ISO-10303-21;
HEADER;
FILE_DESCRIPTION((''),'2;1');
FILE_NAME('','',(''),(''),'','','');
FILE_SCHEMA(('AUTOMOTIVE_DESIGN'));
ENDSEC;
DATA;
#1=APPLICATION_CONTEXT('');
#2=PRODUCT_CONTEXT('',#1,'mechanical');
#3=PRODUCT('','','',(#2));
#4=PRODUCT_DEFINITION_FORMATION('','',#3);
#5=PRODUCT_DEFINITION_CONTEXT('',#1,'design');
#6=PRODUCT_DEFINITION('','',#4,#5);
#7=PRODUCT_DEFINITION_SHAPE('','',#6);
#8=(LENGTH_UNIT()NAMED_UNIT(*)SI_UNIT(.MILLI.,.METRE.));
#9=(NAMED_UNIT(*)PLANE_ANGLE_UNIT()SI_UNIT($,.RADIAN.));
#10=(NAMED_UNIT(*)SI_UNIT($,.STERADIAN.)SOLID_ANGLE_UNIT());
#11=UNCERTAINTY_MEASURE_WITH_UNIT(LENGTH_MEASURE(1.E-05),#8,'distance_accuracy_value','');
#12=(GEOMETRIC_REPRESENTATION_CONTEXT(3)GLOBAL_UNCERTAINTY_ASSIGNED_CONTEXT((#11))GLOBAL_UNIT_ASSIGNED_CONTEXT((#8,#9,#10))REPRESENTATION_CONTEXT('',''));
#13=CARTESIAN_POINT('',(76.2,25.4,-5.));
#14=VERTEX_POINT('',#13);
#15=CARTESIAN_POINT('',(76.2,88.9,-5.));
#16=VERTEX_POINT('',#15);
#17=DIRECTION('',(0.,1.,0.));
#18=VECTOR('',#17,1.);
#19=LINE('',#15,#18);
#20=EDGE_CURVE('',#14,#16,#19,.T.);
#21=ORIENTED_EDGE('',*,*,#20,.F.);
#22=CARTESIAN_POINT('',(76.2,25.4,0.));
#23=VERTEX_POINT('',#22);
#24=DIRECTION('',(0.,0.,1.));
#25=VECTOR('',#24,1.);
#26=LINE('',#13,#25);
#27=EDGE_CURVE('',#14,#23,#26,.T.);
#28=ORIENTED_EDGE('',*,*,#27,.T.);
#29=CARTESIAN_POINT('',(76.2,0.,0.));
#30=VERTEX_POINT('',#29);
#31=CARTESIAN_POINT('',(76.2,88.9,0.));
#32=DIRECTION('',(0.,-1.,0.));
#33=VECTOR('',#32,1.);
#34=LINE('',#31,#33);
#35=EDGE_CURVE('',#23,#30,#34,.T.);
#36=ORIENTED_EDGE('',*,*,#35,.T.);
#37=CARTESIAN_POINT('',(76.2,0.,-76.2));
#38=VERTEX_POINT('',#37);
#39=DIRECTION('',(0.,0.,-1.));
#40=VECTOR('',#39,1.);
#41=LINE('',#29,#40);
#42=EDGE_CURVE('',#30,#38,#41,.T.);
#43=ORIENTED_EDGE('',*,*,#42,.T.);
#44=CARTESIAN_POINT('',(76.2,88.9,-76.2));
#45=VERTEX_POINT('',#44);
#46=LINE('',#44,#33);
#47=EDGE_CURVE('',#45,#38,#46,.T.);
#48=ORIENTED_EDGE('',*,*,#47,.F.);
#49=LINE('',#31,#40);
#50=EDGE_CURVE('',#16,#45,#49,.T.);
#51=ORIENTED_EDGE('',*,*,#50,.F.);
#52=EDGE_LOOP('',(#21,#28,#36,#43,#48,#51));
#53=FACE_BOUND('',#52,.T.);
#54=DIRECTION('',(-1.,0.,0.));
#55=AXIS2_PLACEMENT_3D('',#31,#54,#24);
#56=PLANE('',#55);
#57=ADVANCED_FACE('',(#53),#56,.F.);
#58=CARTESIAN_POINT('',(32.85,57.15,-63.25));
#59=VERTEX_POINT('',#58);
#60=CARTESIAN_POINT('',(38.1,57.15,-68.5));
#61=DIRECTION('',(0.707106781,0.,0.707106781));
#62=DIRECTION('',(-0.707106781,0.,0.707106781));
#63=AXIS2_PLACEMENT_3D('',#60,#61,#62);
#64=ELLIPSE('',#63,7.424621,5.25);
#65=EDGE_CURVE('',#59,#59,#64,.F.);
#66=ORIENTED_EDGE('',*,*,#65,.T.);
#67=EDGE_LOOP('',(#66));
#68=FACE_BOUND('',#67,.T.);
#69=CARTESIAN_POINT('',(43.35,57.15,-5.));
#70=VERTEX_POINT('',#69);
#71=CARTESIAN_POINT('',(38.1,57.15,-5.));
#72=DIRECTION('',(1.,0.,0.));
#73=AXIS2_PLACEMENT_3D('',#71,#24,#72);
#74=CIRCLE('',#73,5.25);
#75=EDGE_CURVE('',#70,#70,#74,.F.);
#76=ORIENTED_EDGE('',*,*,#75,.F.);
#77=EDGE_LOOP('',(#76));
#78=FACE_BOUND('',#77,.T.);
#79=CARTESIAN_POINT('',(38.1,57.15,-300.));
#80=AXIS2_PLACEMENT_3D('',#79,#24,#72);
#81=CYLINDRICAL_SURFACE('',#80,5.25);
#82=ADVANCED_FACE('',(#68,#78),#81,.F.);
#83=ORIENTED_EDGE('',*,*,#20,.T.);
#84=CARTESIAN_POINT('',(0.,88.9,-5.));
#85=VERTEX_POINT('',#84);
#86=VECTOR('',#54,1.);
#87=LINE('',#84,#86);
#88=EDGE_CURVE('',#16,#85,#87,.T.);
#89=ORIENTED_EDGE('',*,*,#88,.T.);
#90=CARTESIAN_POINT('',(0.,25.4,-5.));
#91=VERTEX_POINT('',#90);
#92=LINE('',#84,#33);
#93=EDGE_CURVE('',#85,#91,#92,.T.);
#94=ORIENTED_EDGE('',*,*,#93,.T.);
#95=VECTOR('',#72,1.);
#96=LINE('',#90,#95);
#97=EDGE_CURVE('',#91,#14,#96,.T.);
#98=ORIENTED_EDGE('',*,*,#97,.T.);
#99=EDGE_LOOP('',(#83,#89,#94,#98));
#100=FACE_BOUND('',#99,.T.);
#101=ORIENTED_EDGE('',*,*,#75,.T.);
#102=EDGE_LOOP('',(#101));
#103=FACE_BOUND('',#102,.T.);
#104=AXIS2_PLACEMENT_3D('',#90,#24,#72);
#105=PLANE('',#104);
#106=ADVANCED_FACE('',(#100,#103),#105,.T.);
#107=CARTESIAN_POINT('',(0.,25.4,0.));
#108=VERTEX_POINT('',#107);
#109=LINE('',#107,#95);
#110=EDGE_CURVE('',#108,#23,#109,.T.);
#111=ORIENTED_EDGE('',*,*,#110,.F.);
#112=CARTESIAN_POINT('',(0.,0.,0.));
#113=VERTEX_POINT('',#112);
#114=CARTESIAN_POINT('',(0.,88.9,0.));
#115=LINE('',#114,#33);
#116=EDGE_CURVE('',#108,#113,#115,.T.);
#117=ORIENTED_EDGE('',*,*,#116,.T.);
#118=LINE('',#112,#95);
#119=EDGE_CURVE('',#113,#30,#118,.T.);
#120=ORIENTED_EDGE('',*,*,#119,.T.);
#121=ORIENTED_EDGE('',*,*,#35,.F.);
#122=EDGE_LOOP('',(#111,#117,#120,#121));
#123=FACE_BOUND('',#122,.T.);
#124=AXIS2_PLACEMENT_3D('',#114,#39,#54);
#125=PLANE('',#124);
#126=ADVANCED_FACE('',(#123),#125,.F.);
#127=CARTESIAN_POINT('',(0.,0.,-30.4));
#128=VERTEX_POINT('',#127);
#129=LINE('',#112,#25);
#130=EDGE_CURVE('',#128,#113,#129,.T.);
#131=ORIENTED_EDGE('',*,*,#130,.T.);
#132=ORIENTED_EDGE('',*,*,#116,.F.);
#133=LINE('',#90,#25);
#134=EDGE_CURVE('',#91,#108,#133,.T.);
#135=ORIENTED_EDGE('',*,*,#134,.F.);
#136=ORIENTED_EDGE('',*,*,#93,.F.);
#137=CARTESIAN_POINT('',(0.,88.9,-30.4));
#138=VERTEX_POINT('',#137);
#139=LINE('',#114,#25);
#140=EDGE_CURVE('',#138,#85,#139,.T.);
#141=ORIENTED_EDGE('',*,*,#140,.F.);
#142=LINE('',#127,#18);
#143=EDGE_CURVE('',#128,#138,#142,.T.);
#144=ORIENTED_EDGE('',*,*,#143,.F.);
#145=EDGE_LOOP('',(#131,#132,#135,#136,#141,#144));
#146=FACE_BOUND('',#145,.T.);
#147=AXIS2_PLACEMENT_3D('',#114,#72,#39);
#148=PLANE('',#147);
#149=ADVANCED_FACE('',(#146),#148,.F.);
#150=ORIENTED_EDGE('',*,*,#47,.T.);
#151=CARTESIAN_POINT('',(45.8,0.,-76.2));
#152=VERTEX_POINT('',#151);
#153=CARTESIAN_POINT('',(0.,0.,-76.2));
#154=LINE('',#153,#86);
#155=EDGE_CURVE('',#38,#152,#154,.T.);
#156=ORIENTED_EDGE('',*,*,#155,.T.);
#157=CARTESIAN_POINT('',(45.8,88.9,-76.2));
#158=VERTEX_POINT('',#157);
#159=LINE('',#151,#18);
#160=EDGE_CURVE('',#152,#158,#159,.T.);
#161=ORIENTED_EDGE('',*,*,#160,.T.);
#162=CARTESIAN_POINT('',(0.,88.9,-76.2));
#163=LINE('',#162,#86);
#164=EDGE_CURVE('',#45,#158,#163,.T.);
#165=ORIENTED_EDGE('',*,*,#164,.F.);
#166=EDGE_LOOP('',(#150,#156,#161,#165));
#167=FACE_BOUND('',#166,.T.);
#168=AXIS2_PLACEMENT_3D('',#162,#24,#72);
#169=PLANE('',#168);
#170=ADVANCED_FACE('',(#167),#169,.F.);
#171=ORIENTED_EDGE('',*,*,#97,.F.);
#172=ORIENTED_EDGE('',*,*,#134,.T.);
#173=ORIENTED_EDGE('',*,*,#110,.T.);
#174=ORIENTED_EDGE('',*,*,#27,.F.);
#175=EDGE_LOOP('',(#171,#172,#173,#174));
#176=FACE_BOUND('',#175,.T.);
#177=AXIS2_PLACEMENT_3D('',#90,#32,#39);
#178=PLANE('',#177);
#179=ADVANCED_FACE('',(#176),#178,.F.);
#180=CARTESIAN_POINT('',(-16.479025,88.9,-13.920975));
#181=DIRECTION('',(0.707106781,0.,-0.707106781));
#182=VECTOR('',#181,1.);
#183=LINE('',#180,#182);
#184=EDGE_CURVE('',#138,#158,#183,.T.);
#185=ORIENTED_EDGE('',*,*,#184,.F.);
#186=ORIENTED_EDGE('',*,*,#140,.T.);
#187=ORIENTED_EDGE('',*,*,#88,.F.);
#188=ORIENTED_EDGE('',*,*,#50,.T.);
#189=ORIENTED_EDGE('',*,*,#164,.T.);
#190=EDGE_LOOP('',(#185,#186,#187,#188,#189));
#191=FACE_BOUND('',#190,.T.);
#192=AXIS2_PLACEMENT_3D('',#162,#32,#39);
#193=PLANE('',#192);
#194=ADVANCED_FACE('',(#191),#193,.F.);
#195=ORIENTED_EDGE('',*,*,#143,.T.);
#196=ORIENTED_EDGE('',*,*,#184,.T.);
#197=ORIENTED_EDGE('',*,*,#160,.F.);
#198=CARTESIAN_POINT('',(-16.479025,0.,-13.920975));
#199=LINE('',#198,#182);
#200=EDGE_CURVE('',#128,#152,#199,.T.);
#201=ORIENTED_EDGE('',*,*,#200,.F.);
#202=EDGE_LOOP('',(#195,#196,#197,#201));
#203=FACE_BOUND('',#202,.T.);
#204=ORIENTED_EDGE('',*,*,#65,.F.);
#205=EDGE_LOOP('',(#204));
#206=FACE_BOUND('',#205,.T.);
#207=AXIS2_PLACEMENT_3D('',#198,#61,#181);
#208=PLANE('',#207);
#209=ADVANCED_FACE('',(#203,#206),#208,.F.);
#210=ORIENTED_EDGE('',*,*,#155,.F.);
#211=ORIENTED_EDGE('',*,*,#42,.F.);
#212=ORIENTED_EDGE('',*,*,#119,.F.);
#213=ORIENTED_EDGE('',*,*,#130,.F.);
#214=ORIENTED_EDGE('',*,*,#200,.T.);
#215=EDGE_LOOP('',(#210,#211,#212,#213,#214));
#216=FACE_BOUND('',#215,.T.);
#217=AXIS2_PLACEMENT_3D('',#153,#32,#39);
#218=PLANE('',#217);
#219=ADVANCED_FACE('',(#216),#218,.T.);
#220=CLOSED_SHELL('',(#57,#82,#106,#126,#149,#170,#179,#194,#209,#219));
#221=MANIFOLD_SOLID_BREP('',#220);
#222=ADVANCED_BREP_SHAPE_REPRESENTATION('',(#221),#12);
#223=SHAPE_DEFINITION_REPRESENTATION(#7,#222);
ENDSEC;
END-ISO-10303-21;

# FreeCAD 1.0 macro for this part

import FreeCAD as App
import Part
import Sketcher
from FreeCAD import Vector

doc = App.newDocument("Part")
body = doc.addObject("PartDesign::Body", "Body")

sketch1 = body.newObject("Sketcher::SketchObject", "Sketch")
sketch1.AttachmentSupport = (doc.getObject("XZ_Plane"), [""])
sketch1.MapMode = "FlatFace"
sketch1.addGeometry([
    Part.LineSegment(Vector(0, -76, 0), Vector(0, 0, 0)),
    Part.LineSegment(Vector(0, 0, 0), Vector(76, 0, 0)),
    Part.LineSegment(Vector(76, 0, 0), Vector(76, -76, 0)),
    Part.LineSegment(Vector(76, -76, 0), Vector(0, -76, 0)),
], False)
sketch1.addConstraint([
    Sketcher.Constraint("Coincident", 0, 2, 1, 1),
    Sketcher.Constraint("Coincident", 1, 2, 2, 1),
    Sketcher.Constraint("Coincident", 2, 2, 3, 1),
    Sketcher.Constraint("Coincident", 3, 2, 0, 1),
    Sketcher.Constraint("Vertical", 0),
    Sketcher.Constraint("Horizontal", 1),
    Sketcher.Constraint("Vertical", 2),
    Sketcher.Constraint("Horizontal", 3),
    Sketcher.Constraint("Coincident", 0, 2, -1, 1),
    Sketcher.Constraint("Equal", 3, 0),
    Sketcher.Constraint("DistanceX", 1, 1, 1, 2, 76.2),
])
pad1 = body.newObject("PartDesign::Pad", "Pad")
pad1.Profile = sketch1
pad1.Length = 88.9
pad1.Reversed = True

sketch2 = body.newObject("Sketcher::SketchObject", "Sketch001")
sketch2.AttachmentSupport = (doc.getObject("XY_Plane"), [""])
sketch2.MapMode = "FlatFace"
sketch2.addGeometry(Part.Circle(Vector(38, 57, 0), Vector(0, 0, 1), 5), False)
sketch2.addConstraint([
    Sketcher.Constraint("Diameter", 0, 10.5),
    Sketcher.Constraint("DistanceX", -1, 1, 0, 3, 38.1),
    Sketcher.Constraint("DistanceY", -1, 1, 0, 3, 57.15),
])
pocket1 = body.newObject("PartDesign::Pocket", "Pocket")
pocket1.Profile = sketch2
pocket1.Length = 300

sketch3 = body.newObject("Sketcher::SketchObject", "Sketch002")
sketch3.AttachmentSupport = (doc.getObject("XY_Plane"), [""])
sketch3.MapMode = "FlatFace"
sketch3.addGeometry([
    Part.LineSegment(Vector(0, 89, 0), Vector(0, 25, 0)),
    Part.LineSegment(Vector(0, 25, 0), Vector(76, 25, 0)),
    Part.LineSegment(Vector(76, 25, 0), Vector(76, 89, 0)),
    Part.LineSegment(Vector(76, 89, 0), Vector(0, 89, 0)),
], False)
sketch3.addConstraint([
    Sketcher.Constraint("Coincident", 0, 2, 1, 1),
    Sketcher.Constraint("Coincident", 1, 2, 2, 1),
    Sketcher.Constraint("Coincident", 2, 2, 3, 1),
    Sketcher.Constraint("Coincident", 3, 2, 0, 1),
    Sketcher.Constraint("Vertical", 0),
    Sketcher.Constraint("Horizontal", 1),
    Sketcher.Constraint("Vertical", 2),
    Sketcher.Constraint("Horizontal", 3),
    Sketcher.Constraint("PointOnObject", 0, 2, -2),
    Sketcher.Constraint("DistanceX", 1, 1, 1, 2, 76.2),
    Sketcher.Constraint("DistanceY", 0, 2, 0, 1, 63.5),
    Sketcher.Constraint("DistanceY", -1, 1, 0, 2, 25.4),
])
pocket2 = body.newObject("PartDesign::Pocket", "Pocket001")
pocket2.Profile = sketch3
pocket2.Length = 5

sketch4 = body.newObject("Sketcher::SketchObject", "Sketch003")
sketch4.AttachmentSupport = (doc.getObject("XZ_Plane"), [""])
sketch4.MapMode = "FlatFace"
sketch4.AttachmentOffset = App.Placement(Vector(0, 0, -88.9), App.Rotation())
sketch4.addGeometry([
    Part.LineSegment(Vector(0, -76, 0), Vector(0, -30, 0)),
    Part.LineSegment(Vector(0, -30, 0), Vector(46, -76, 0)),
    Part.LineSegment(Vector(46, -76, 0), Vector(0, -76, 0)),
], False)
sketch4.addConstraint([
    Sketcher.Constraint("Coincident", 0, 2, 1, 1),
    Sketcher.Constraint("Coincident", 1, 2, 2, 1),
    Sketcher.Constraint("Coincident", 2, 2, 0, 1),
    Sketcher.Constraint("Vertical", 0),
    Sketcher.Constraint("Horizontal", 2),
    Sketcher.Constraint("PointOnObject", 0, 2, -2),
    Sketcher.Constraint("Equal", 2, 0),
    Sketcher.Constraint("DistanceX", 2, 2, 2, 1, 45.8),
    Sketcher.Constraint("DistanceY", 0, 2, -1, 1, 30.4),
])
pocket3 = body.newObject("PartDesign::Pocket", "Pocket002")
pocket3.Profile = sketch4
pocket3.Type = "ThroughAll"
pocket3.Reversed = True

doc.recompute()
